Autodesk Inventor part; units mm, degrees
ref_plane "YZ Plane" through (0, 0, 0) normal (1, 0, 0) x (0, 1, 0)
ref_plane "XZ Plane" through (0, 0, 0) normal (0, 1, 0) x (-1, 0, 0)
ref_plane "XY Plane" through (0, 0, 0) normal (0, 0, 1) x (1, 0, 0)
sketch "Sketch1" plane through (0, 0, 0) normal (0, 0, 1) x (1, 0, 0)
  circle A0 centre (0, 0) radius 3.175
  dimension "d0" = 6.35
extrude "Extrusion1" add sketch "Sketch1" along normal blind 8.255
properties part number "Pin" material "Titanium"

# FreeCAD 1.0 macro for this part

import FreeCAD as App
import Part
import Sketcher
Q = App.Units.Quantity

doc = App.newDocument("Part")
body = doc.addObject("PartDesign::Body", "Body")

# Sketch on XY plane
sketch1 = body.newObject("Sketcher::SketchObject", "Sketch")
sketch1.AttachmentSupport = (doc.getObject("XY_Plane"), [""])
sketch1.MapMode = "FlatFace"
sketch1.addGeometry(Part.Circle(App.Vector(0, 0, 0), App.Vector(0, 0, 1), 3.175), False)
sketch1.addConstraint([
    Sketcher.Constraint("Coincident", 0, 3, -1, 1),
    Sketcher.Constraint("Diameter", 0, Q("0.25 in")),
])
pad1 = body.newObject("PartDesign::Pad", "Pad")
pad1.Profile = sketch1
pad1.Length = Q("0.325 in")

doc.recompute()
